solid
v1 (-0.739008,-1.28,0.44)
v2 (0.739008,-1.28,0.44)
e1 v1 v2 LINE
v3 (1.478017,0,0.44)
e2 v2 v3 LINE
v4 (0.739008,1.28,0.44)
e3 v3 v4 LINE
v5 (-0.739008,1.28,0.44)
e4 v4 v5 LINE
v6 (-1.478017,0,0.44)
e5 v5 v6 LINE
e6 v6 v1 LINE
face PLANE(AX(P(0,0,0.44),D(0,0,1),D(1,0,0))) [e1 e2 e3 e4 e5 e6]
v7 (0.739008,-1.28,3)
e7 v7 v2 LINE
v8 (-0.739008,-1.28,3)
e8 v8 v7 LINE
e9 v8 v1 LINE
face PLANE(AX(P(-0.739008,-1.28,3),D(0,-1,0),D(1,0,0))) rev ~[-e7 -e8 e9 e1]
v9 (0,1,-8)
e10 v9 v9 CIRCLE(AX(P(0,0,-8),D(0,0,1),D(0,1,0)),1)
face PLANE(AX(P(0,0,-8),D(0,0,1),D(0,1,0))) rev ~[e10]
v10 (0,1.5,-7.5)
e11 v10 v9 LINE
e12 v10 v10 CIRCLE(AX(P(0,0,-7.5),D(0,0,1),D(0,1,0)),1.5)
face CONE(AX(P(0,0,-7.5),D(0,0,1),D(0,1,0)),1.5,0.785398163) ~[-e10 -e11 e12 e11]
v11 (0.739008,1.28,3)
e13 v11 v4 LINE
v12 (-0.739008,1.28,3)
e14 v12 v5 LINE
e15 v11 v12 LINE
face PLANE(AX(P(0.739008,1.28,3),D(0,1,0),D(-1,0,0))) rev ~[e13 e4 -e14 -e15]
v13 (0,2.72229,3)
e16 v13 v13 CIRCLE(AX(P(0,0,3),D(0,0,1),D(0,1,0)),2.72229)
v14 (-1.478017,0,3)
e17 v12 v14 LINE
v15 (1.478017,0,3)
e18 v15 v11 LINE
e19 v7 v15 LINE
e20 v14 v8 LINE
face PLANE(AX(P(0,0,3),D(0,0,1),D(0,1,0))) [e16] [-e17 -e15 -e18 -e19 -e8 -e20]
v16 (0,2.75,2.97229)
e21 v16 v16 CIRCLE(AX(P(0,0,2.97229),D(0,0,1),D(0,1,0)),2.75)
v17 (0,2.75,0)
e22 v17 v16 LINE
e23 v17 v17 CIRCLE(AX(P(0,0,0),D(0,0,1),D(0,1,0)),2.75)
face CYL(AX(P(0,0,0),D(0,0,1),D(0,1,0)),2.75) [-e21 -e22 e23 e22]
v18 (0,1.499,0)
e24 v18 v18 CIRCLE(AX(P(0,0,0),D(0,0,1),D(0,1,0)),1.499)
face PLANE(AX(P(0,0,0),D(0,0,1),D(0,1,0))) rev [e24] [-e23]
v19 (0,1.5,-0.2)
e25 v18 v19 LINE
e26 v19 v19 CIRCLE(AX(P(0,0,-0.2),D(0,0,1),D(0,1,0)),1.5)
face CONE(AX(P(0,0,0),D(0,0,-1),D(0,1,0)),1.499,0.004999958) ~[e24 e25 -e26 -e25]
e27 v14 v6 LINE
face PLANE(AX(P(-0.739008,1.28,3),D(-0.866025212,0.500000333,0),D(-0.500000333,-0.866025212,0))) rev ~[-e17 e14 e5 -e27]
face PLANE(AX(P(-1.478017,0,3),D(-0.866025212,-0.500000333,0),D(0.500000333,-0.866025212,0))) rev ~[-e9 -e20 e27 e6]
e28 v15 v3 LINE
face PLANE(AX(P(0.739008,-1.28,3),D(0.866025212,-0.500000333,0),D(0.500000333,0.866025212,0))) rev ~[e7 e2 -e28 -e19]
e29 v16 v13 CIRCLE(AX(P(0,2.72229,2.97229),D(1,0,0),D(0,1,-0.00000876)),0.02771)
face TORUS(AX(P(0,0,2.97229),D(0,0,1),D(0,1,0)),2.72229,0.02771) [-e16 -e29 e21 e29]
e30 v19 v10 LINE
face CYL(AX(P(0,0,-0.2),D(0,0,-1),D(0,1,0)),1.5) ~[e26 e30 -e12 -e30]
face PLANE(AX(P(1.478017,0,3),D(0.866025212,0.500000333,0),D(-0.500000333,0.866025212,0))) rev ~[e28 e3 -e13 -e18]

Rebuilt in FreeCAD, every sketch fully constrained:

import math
import FreeCAD as App
import Part
import Sketcher

V = App.Vector
Q = App.Units.Quantity

doc = App.newDocument("Part")
params = doc.addObject("Spreadsheet::Sheet", "Params")
for row, (alias, value) in enumerate([
    ("sketch1_width", "1 mm"),
    ("sketch1_height", "11 mm"),
    ("sketch1_height2", "7.3 mm"),
    ("revolution_angle", "360 deg"),
    ("pocket1_length", "2.56 mm"),
], start=1):
    params.set(f"A{row}", alias)
    params.set(f"B{row}", "=" + value)
    params.setAlias(f"B{row}", alias)

body = doc.addObject("PartDesign::Body", "Body")

sketch1 = body.newObject("Sketcher::SketchObject", "Sketch")
sketch1.AttachmentSupport = (doc.getObject("YZ_Plane"), [""])
sketch1.MapMode = "FlatFace"
sketch1.addGeometry(Part.LineSegment(V(1.499, 0, 0), V(2.75, 0, 0)), False)
sketch1.addGeometry(Part.LineSegment(V(2.75, 0, 0), V(2.75, 2.972, 0)), False)
sketch1.addGeometry(Part.ArcOfCircle(Part.Circle(V(2.722, 2.972, 0), V(0, 0, 1), 0.028), math.radians(0), math.radians(90)), False)
sketch1.addGeometry(Part.LineSegment(V(2.722, 3, 0), V(0, 3, 0)), False)
sketch1.addGeometry(Part.LineSegment(V(0, 3, 0), V(0, -8, 0)), False)
sketch1.addGeometry(Part.LineSegment(V(0, -8, 0), V(1, -8, 0)), False)
sketch1.addGeometry(Part.LineSegment(V(1, -8, 0), V(1.5, -7.5, 0)), False)
sketch1.addGeometry(Part.LineSegment(V(1.5, -7.5, 0), V(1.5, -0.2, 0)), False)
sketch1.addGeometry(Part.LineSegment(V(1.5, -0.2, 0), V(1.499, 0, 0)), False)
sketch1.addConstraint(Sketcher.Constraint("Coincident", 0, 2, 1, 1))
sketch1.addConstraint(Sketcher.Constraint("Coincident", 1, 2, 2, 1))
sketch1.addConstraint(Sketcher.Constraint("Coincident", 2, 2, 3, 1))
sketch1.addConstraint(Sketcher.Constraint("Coincident", 3, 2, 4, 1))
sketch1.addConstraint(Sketcher.Constraint("Coincident", 4, 2, 5, 1))
sketch1.addConstraint(Sketcher.Constraint("Coincident", 5, 2, 6, 1))
sketch1.addConstraint(Sketcher.Constraint("Coincident", 6, 2, 7, 1))
sketch1.addConstraint(Sketcher.Constraint("Coincident", 7, 2, 8, 1))
sketch1.addConstraint(Sketcher.Constraint("Coincident", 8, 2, 0, 1))
sketch1.addConstraint(Sketcher.Constraint("Horizontal", 0))
sketch1.addConstraint(Sketcher.Constraint("Vertical", 1))
sketch1.addConstraint(Sketcher.Constraint("Horizontal", 3))
sketch1.addConstraint(Sketcher.Constraint("Vertical", 4))
sketch1.addConstraint(Sketcher.Constraint("Horizontal", 5))
sketch1.addConstraint(Sketcher.Constraint("Vertical", 7))
sketch1.addConstraint(Sketcher.Constraint("PointOnObject", 0, 2, -1))
sketch1.addConstraint(Sketcher.Constraint("PointOnObject", 3, 2, -2))
sketch1.addConstraint(Sketcher.Constraint("Horizontal", 2, 3, 1, 2))
sketch1.addConstraint(Sketcher.Constraint("DistanceX", 5, 1, 5, 2, 1.0))
sketch1.addConstraint(Sketcher.Constraint("DistanceY", 4, 2, 4, 1, 11.0))
sketch1.addConstraint(Sketcher.Constraint("Angle", 6, Q("45 deg")))
sketch1.addConstraint(Sketcher.Constraint("DistanceY", 7, 1, 7, 2, 7.3))
sketch1.addConstraint(Sketcher.Constraint("DistanceY", -1, 1, 2, 2, 3.0))
sketch1.addConstraint(Sketcher.Constraint("DistanceX", -1, 1, 6, 2, 1.5))
sketch1.addConstraint(Sketcher.Constraint("DistanceX", 0, 1, 0, 2, 1.251))
sketch1.addConstraint(Sketcher.Constraint("DistanceX", -1, 1, 0, 2, 2.75))
sketch1.addConstraint(Sketcher.Constraint("Radius", 2, 0.02771))
sketch1.addConstraint(Sketcher.Constraint("DistanceX", 3, 2, 3, 1, 2.72229))
sketch1.setExpression("Constraints[18]", "Params.sketch1_width")
sketch1.setExpression("Constraints[19]", "Params.sketch1_height")
sketch1.setExpression("Constraints[21]", "Params.sketch1_height2")
revolution = body.newObject("PartDesign::Revolution", "Revolution")
revolution.Profile = sketch1
revolution.ReferenceAxis = (sketch1, ["V_Axis"])
revolution.setExpression("Angle", "Params.revolution_angle")

sketch2 = body.newObject("Sketcher::SketchObject", "Sketch001")
sketch2.AttachmentSupport = (doc.getObject("XY_Plane"), [""])
sketch2.MapMode = "FlatFace"
sketch2.AttachmentOffset = App.Placement(V(0, 0, 3), App.Rotation())
sketch2.addGeometry(Part.LineSegment(V(1.5, 0, 0), V(0.7, 1.3, 0)), False)
sketch2.addGeometry(Part.LineSegment(V(0.7, 1.3, 0), V(-0.7, 1.3, 0)), False)
sketch2.addGeometry(Part.LineSegment(V(-0.7, 1.3, 0), V(-1.5, 0, 0)), False)
sketch2.addGeometry(Part.LineSegment(V(-1.5, 0, 0), V(-0.7, -1.3, 0)), False)
sketch2.addGeometry(Part.LineSegment(V(-0.7, -1.3, 0), V(0.7, -1.3, 0)), False)
sketch2.addGeometry(Part.LineSegment(V(0.7, -1.3, 0), V(1.5, 0, 0)), False)
sketch2.addConstraint(Sketcher.Constraint("Coincident", 0, 2, 1, 1))
sketch2.addConstraint(Sketcher.Constraint("Coincident", 1, 2, 2, 1))
sketch2.addConstraint(Sketcher.Constraint("Coincident", 2, 2, 3, 1))
sketch2.addConstraint(Sketcher.Constraint("Coincident", 3, 2, 4, 1))
sketch2.addConstraint(Sketcher.Constraint("Coincident", 4, 2, 5, 1))
sketch2.addConstraint(Sketcher.Constraint("Coincident", 5, 2, 0, 1))
sketch2.addConstraint(Sketcher.Constraint("Horizontal", 1))
sketch2.addConstraint(Sketcher.Constraint("Horizontal", 4))
sketch2.addConstraint(Sketcher.Constraint("Symmetric", 0, 2, 3, 2, -1, 1))
sketch2.addConstraint(Sketcher.Constraint("Symmetric", 2, 2, 5, 2, -1, 1))
sketch2.addConstraint(Sketcher.Constraint("PointOnObject", 2, 2, -1))
sketch2.addConstraint(Sketcher.Constraint("Parallel", 2, 5))
sketch2.addConstraint(Sketcher.Constraint("Vertical", 1, 2, 3, 2))
sketch2.addConstraint(Sketcher.Constraint("DistanceY", -1, 1, 0, 2, 1.28))
sketch2.addConstraint(Sketcher.Constraint("DistanceX", 1, 2, 1, 1, 1.478016))
sketch2.addConstraint(Sketcher.Constraint("DistanceX", 2, 2, 1, 2, 0.739009))
pocket1 = body.newObject("PartDesign::Pocket", "Pocket")
pocket1.Profile = sketch2
pocket1.setExpression("Length", "Params.pocket1_length")

doc.recompute()
